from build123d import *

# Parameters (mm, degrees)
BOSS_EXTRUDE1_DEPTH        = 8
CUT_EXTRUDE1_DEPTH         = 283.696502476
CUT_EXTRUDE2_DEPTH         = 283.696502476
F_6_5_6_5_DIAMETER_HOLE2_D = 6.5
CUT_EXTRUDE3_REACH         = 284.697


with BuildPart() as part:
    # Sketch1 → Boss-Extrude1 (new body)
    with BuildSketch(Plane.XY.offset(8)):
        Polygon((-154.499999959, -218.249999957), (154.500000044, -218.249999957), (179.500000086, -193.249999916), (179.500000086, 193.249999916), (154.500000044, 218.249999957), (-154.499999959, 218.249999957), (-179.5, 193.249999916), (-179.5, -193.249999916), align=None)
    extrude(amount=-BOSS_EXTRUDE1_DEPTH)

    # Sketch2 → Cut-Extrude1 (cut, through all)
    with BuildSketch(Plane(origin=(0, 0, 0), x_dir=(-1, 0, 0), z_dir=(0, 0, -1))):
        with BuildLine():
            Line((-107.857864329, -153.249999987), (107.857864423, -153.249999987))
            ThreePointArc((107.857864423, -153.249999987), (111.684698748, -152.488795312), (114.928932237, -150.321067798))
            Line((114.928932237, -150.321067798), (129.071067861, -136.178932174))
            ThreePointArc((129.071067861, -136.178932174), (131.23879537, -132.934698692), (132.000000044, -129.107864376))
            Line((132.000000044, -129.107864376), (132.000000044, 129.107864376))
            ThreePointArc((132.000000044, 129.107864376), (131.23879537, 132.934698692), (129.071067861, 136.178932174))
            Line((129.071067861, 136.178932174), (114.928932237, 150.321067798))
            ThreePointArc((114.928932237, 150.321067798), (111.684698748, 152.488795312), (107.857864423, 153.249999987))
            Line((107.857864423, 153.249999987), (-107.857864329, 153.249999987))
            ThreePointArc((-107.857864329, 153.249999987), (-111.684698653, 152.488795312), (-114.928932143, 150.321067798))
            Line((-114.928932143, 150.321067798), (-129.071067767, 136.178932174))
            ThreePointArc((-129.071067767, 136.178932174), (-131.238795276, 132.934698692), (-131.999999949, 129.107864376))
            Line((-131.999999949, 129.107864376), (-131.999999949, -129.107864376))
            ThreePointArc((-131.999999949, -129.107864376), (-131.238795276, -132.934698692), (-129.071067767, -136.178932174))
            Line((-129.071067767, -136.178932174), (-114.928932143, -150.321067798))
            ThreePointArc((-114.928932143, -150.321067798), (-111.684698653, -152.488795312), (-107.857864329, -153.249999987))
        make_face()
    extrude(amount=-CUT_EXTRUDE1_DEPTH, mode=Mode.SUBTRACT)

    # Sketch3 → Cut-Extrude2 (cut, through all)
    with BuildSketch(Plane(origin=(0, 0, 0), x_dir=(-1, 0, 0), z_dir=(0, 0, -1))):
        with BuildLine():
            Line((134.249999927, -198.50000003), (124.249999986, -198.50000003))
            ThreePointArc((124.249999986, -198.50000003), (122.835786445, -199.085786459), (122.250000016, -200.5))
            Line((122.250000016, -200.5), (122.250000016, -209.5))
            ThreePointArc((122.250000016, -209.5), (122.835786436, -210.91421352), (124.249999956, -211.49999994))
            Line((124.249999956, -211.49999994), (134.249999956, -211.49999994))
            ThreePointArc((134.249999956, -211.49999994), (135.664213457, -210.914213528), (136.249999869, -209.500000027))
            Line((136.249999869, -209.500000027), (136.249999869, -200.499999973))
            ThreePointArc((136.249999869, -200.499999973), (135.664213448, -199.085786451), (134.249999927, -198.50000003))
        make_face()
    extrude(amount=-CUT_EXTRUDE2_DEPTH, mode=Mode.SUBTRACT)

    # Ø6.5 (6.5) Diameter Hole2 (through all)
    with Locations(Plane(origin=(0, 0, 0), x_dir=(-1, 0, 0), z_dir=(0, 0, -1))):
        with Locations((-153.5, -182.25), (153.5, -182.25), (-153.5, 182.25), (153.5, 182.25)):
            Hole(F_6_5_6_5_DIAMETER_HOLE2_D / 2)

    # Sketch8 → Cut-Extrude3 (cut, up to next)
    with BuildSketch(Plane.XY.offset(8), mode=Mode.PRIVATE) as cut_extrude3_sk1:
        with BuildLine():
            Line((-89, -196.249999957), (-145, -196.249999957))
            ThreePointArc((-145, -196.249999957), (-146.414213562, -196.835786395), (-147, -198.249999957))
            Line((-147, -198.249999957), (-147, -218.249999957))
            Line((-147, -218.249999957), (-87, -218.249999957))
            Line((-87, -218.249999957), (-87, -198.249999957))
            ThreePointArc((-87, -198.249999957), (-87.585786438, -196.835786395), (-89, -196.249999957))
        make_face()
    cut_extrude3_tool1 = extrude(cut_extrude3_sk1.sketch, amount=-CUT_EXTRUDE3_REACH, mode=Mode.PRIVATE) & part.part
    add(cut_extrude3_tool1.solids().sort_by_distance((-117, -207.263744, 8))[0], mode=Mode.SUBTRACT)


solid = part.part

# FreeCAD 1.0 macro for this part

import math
import FreeCAD as App
import Part
import Sketcher

V = App.Vector
Q = App.Units.Quantity

doc = App.newDocument("Part")
body = doc.addObject("PartDesign::Body", "Body")

sketch1 = body.newObject("Sketcher::SketchObject", "Sketch")
sketch1.AttachmentSupport = (doc.getObject("XY_Plane"), [""])
sketch1.MapMode = "FlatFace"
sketch1.AttachmentOffset = App.Placement(V(0, 0, 8), App.Rotation())
sketch1.addGeometry([
    Part.LineSegment(V(-154.5, -218.25, 0), V(154.5, -218.25, 0)),
    Part.LineSegment(V(154.5, -218.25, 0), V(179.5, -193.25, 0)),
    Part.LineSegment(V(179.5, -193.25, 0), V(179.5, 193.25, 0)),
    Part.LineSegment(V(179.5, 193.25, 0), V(154.5, 218.25, 0)),
    Part.LineSegment(V(154.5, 218.25, 0), V(-154.5, 218.25, 0)),
    Part.LineSegment(V(-154.5, 218.25, 0), V(-179.5, 193.25, 0)),
    Part.LineSegment(V(-179.5, 193.25, 0), V(-179.5, -193.25, 0)),
    Part.LineSegment(V(-179.5, -193.25, 0), V(-154.5, -218.25, 0)),
], False)
sketch1.addConstraint([
    Sketcher.Constraint("Coincident", 0, 2, 1, 1),
    Sketcher.Constraint("Coincident", 1, 2, 2, 1),
    Sketcher.Constraint("Coincident", 2, 2, 3, 1),
    Sketcher.Constraint("Coincident", 3, 2, 4, 1),
    Sketcher.Constraint("Coincident", 4, 2, 5, 1),
    Sketcher.Constraint("Coincident", 5, 2, 6, 1),
    Sketcher.Constraint("Coincident", 6, 2, 7, 1),
    Sketcher.Constraint("Coincident", 7, 2, 0, 1),
    Sketcher.Constraint("Horizontal", 0),
    Sketcher.Constraint("Vertical", 2),
    Sketcher.Constraint("Horizontal", 4),
    Sketcher.Constraint("Vertical", 6),
    Sketcher.Constraint("Symmetric", 0, 2, 4, 2, -1, 1),
    Sketcher.Constraint("Symmetric", 1, 2, 5, 2, -1, 1),
    Sketcher.Constraint("Perpendicular", 1, 3),
    Sketcher.Constraint("Perpendicular", 5, 7),
    Sketcher.Constraint("Horizontal", 2, 2, 5, 2),
    Sketcher.Constraint("Horizontal", 1, 2, 6, 2),
    Sketcher.Constraint("Vertical", 0, 2, 3, 2),
    Sketcher.Constraint("DistanceX", 0, 1, 0, 2, Q("309 mm")),
    Sketcher.Constraint("DistanceY", 2, 1, 2, 2, Q("386.5 mm")),
    Sketcher.Constraint("DistanceX", 0, 2, 1, 2, Q("25 mm")),
])
pad1 = body.newObject("PartDesign::Pad", "Pad")
pad1.Profile = sketch1
pad1.Length = 8
pad1.Reversed = True

sketch2 = body.newObject("Sketcher::SketchObject", "Sketch001")
sketch2.AttachmentSupport = (doc.getObject("XY_Plane"), [""])
sketch2.MapMode = "FlatFace"
sketch2.addGeometry([
    Part.LineSegment(V(107.857864, -153.25, 0), V(-107.857864, -153.25, 0)),
    Part.ArcOfCircle(Part.Circle(V(-107.857864, -143.25, 0), V(0, 0, 1), 10), math.radians(-135), math.radians(-90)),
    Part.LineSegment(V(-114.928932, -150.321068, 0), V(-129.071068, -136.178932, 0)),
    Part.ArcOfCircle(Part.Circle(V(-122, -129.107864, 0), V(0, 0, 1), 10), math.radians(-180), math.radians(-135)),
    Part.LineSegment(V(-132, -129.107864, 0), V(-132, 129.107864, 0)),
    Part.ArcOfCircle(Part.Circle(V(-122, 129.107864, 0), V(0, 0, 1), 10), math.radians(135), math.radians(180)),
    Part.LineSegment(V(-129.071068, 136.178932, 0), V(-114.928932, 150.321068, 0)),
    Part.ArcOfCircle(Part.Circle(V(-107.857864, 143.25, 0), V(0, 0, 1), 10), math.radians(90), math.radians(135)),
    Part.LineSegment(V(-107.857864, 153.25, 0), V(107.857864, 153.25, 0)),
    Part.ArcOfCircle(Part.Circle(V(107.857864, 143.25, 0), V(0, 0, 1), 10), math.radians(45), math.radians(90)),
    Part.LineSegment(V(114.928932, 150.321068, 0), V(129.071068, 136.178932, 0)),
    Part.ArcOfCircle(Part.Circle(V(122, 129.107864, 0), V(0, 0, 1), 10), math.radians(0), math.radians(45)),
    Part.LineSegment(V(132, 129.107864, 0), V(132, -129.107864, 0)),
    Part.ArcOfCircle(Part.Circle(V(122, -129.107864, 0), V(0, 0, 1), 10), math.radians(-45), math.radians(0)),
    Part.LineSegment(V(129.071068, -136.178932, 0), V(114.928932, -150.321068, 0)),
    Part.ArcOfCircle(Part.Circle(V(107.857864, -143.25, 0), V(0, 0, 1), 10), math.radians(-90), math.radians(-45)),
], False)
sketch2.addConstraint([
    Sketcher.Constraint("Tangent", 0, 2, 1, 2),
    Sketcher.Constraint("Tangent", 1, 1, 2, 1),
    Sketcher.Constraint("Tangent", 2, 2, 3, 2),
    Sketcher.Constraint("Tangent", 3, 1, 4, 1),
    Sketcher.Constraint("Tangent", 4, 2, 5, 2),
    Sketcher.Constraint("Tangent", 5, 1, 6, 1),
    Sketcher.Constraint("Tangent", 6, 2, 7, 2),
    Sketcher.Constraint("Tangent", 7, 1, 8, 1),
    Sketcher.Constraint("Tangent", 8, 2, 9, 2),
    Sketcher.Constraint("Tangent", 9, 1, 10, 1),
    Sketcher.Constraint("Tangent", 10, 2, 11, 2),
    Sketcher.Constraint("Tangent", 11, 1, 12, 1),
    Sketcher.Constraint("Tangent", 12, 2, 13, 2),
    Sketcher.Constraint("Tangent", 13, 1, 14, 1),
    Sketcher.Constraint("Tangent", 14, 2, 15, 2),
    Sketcher.Constraint("Tangent", 15, 1, 0, 1),
    Sketcher.Constraint("Horizontal", 0),
    Sketcher.Constraint("Vertical", 4),
    Sketcher.Constraint("Horizontal", 8),
    Sketcher.Constraint("Vertical", 12),
    Sketcher.Constraint("Equal", 1, 3),
    Sketcher.Constraint("Equal", 3, 5),
    Sketcher.Constraint("Equal", 5, 7),
    Sketcher.Constraint("Equal", 7, 9),
    Sketcher.Constraint("Equal", 9, 11),
    Sketcher.Constraint("Equal", 11, 13),
    Sketcher.Constraint("Equal", 13, 15),
    Sketcher.Constraint("Symmetric", 1, 3, 9, 3, -1, 1),
    Sketcher.Constraint("Symmetric", 3, 3, 11, 3, -1, 1),
    Sketcher.Constraint("Symmetric", 5, 1, 13, 1, -1, 1),
    Sketcher.Constraint("Symmetric", 6, 2, 9, 1, -2),
    Sketcher.Constraint("Perpendicular", 2, 6),
    Sketcher.Constraint("Radius", 1, Q("10 mm")),
    Sketcher.Constraint("Distance", 2, Q("20 mm")),
    Sketcher.Constraint("DistanceX", 3, 3, -1, 1, Q("122 mm")),
    Sketcher.Constraint("DistanceY", 1, 3, 7, 3, Q("286.5 mm")),
])
pocket1 = body.newObject("PartDesign::Pocket", "Pocket")
pocket1.Profile = sketch2
pocket1.Type = "ThroughAll"
pocket1.Reversed = True

sketch3 = body.newObject("Sketcher::SketchObject", "Sketch002")
sketch3.AttachmentSupport = (doc.getObject("XY_Plane"), [""])
sketch3.MapMode = "FlatFace"
sketch3.addGeometry([
    Part.LineSegment(V(-134.25, -198.5, 0), V(-124.25, -198.5, 0)),
    Part.ArcOfCircle(Part.Circle(V(-124.25, -200.5, 0), V(0, 0, 1), 2), math.radians(0), math.radians(90)),
    Part.LineSegment(V(-122.25, -200.5, 0), V(-122.25, -209.5, 0)),
    Part.ArcOfCircle(Part.Circle(V(-124.25, -209.5, 0), V(0, 0, 1), 2), math.radians(-90), math.radians(0)),
    Part.LineSegment(V(-124.25, -211.5, 0), V(-134.25, -211.5, 0)),
    Part.ArcOfCircle(Part.Circle(V(-134.25, -209.5, 0), V(0, 0, 1), 2), math.radians(180), math.radians(270)),
    Part.LineSegment(V(-136.25, -209.5, 0), V(-136.25, -200.5, 0)),
    Part.ArcOfCircle(Part.Circle(V(-134.25, -200.5, 0), V(0, 0, 1), 2), math.radians(90), math.radians(180)),
], False)
sketch3.addConstraint([
    Sketcher.Constraint("Tangent", 0, 2, 1, 2),
    Sketcher.Constraint("Tangent", 1, 1, 2, 1),
    Sketcher.Constraint("Tangent", 2, 2, 3, 2),
    Sketcher.Constraint("Tangent", 3, 1, 4, 1),
    Sketcher.Constraint("Tangent", 4, 2, 5, 2),
    Sketcher.Constraint("Tangent", 5, 1, 6, 1),
    Sketcher.Constraint("Tangent", 6, 2, 7, 2),
    Sketcher.Constraint("Tangent", 7, 1, 0, 1),
    Sketcher.Constraint("Horizontal", 0),
    Sketcher.Constraint("Vertical", 2),
    Sketcher.Constraint("Horizontal", 4),
    Sketcher.Constraint("Vertical", 6),
    Sketcher.Constraint("Equal", 1, 3),
    Sketcher.Constraint("Equal", 3, 5),
    Sketcher.Constraint("Equal", 5, 7),
    Sketcher.Constraint("Radius", 1, Q("2 mm")),
    Sketcher.Constraint("DistanceX", 0, 1, 0, 2, Q("10 mm")),
    Sketcher.Constraint("DistanceY", 2, 2, 2, 1, Q("9 mm")),
    Sketcher.Constraint("DistanceY", 1, 3, -1, 1, Q("200.5 mm")),
    Sketcher.Constraint("DistanceX", 1, 3, -1, 1, Q("124.25 mm")),
])
pocket2 = body.newObject("PartDesign::Pocket", "Pocket001")
pocket2.Profile = sketch3
pocket2.Type = "ThroughAll"
pocket2.Reversed = True

sketch4 = body.newObject("Sketcher::SketchObject", "Sketch003")
sketch4.AttachmentSupport = (doc.getObject("XY_Plane"), [""])
sketch4.MapMode = "FlatFace"
sketch4.addGeometry([
    Part.Circle(V(153.5, -182.25, 0), V(0, 0, 1), 3.25),
    Part.Circle(V(-153.5, -182.25, 0), V(0, 0, 1), 3.25),
    Part.Circle(V(153.5, 182.25, 0), V(0, 0, 1), 3.25),
    Part.Circle(V(-153.5, 182.25, 0), V(0, 0, 1), 3.25),
], False)
sketch4.addConstraint([
    Sketcher.Constraint("Equal", 0, 1),
    Sketcher.Constraint("Equal", 1, 2),
    Sketcher.Constraint("Equal", 2, 3),
    Sketcher.Constraint("Symmetric", 1, 3, 2, 3, -1, 1),
    Sketcher.Constraint("Symmetric", 0, 3, 3, 3, -1, 1),
    Sketcher.Constraint("Symmetric", 0, 3, 1, 3, -2),
    Sketcher.Constraint("Diameter", 0, Q("6.5 mm")),
    Sketcher.Constraint("DistanceX", 1, 3, 0, 3, Q("307 mm")),
    Sketcher.Constraint("DistanceY", 0, 3, 2, 3, Q("364.5 mm")),
])
doc.recompute()
hole = body.newObject("PartDesign::Hole", "Hole")
hole.Profile = sketch4
hole.ThreadType = "None"
hole.Diameter = 6.5
hole.DepthType = "ThroughAll"
hole.Reversed = True

sketch5 = body.newObject("Sketcher::SketchObject", "Sketch004")
sketch5.AttachmentSupport = (doc.getObject("XY_Plane"), [""])
sketch5.MapMode = "FlatFace"
sketch5.AttachmentOffset = App.Placement(V(0, 0, 8), App.Rotation())
sketch5.addGeometry([
    Part.LineSegment(V(-89, -196.25, 0), V(-145, -196.25, 0)),
    Part.ArcOfCircle(Part.Circle(V(-145, -198.25, 0), V(0, 0, 1), 2), math.radians(90), math.radians(180)),
    Part.LineSegment(V(-147, -198.25, 0), V(-147, -218.25, 0)),
    Part.LineSegment(V(-147, -218.25, 0), V(-87, -218.25, 0)),
    Part.LineSegment(V(-87, -218.25, 0), V(-87, -198.25, 0)),
    Part.ArcOfCircle(Part.Circle(V(-89, -198.25, 0), V(0, 0, 1), 2), math.radians(0), math.radians(90)),
], False)
sketch5.addConstraint([
    Sketcher.Constraint("Tangent", 0, 2, 1, 1),
    Sketcher.Constraint("Tangent", 1, 2, 2, 1),
    Sketcher.Constraint("Coincident", 2, 2, 3, 1),
    Sketcher.Constraint("Coincident", 3, 2, 4, 1),
    Sketcher.Constraint("Tangent", 4, 2, 5, 1),
    Sketcher.Constraint("Tangent", 5, 2, 0, 1),
    Sketcher.Constraint("Horizontal", 0),
    Sketcher.Constraint("Vertical", 2),
    Sketcher.Constraint("Horizontal", 3),
    Sketcher.Constraint("Vertical", 4),
    Sketcher.Constraint("Equal", 1, 5),
    Sketcher.Constraint("Radius", 1, Q("2 mm")),
    Sketcher.Constraint("DistanceX", 0, 2, 0, 1, Q("56 mm")),
    Sketcher.Constraint("DistanceY", 2, 2, 2, 1, Q("20 mm")),
    Sketcher.Constraint("DistanceX", 1, 3, -1, 1, Q("145 mm")),
    Sketcher.Constraint("DistanceY", 1, 3, -1, 1, Q("198.25 mm")),
])
pocket3 = body.newObject("PartDesign::Pocket", "Pocket002")
pocket3.Profile = sketch5
pocket3.Type = "UpToFirst"

doc.recompute()
